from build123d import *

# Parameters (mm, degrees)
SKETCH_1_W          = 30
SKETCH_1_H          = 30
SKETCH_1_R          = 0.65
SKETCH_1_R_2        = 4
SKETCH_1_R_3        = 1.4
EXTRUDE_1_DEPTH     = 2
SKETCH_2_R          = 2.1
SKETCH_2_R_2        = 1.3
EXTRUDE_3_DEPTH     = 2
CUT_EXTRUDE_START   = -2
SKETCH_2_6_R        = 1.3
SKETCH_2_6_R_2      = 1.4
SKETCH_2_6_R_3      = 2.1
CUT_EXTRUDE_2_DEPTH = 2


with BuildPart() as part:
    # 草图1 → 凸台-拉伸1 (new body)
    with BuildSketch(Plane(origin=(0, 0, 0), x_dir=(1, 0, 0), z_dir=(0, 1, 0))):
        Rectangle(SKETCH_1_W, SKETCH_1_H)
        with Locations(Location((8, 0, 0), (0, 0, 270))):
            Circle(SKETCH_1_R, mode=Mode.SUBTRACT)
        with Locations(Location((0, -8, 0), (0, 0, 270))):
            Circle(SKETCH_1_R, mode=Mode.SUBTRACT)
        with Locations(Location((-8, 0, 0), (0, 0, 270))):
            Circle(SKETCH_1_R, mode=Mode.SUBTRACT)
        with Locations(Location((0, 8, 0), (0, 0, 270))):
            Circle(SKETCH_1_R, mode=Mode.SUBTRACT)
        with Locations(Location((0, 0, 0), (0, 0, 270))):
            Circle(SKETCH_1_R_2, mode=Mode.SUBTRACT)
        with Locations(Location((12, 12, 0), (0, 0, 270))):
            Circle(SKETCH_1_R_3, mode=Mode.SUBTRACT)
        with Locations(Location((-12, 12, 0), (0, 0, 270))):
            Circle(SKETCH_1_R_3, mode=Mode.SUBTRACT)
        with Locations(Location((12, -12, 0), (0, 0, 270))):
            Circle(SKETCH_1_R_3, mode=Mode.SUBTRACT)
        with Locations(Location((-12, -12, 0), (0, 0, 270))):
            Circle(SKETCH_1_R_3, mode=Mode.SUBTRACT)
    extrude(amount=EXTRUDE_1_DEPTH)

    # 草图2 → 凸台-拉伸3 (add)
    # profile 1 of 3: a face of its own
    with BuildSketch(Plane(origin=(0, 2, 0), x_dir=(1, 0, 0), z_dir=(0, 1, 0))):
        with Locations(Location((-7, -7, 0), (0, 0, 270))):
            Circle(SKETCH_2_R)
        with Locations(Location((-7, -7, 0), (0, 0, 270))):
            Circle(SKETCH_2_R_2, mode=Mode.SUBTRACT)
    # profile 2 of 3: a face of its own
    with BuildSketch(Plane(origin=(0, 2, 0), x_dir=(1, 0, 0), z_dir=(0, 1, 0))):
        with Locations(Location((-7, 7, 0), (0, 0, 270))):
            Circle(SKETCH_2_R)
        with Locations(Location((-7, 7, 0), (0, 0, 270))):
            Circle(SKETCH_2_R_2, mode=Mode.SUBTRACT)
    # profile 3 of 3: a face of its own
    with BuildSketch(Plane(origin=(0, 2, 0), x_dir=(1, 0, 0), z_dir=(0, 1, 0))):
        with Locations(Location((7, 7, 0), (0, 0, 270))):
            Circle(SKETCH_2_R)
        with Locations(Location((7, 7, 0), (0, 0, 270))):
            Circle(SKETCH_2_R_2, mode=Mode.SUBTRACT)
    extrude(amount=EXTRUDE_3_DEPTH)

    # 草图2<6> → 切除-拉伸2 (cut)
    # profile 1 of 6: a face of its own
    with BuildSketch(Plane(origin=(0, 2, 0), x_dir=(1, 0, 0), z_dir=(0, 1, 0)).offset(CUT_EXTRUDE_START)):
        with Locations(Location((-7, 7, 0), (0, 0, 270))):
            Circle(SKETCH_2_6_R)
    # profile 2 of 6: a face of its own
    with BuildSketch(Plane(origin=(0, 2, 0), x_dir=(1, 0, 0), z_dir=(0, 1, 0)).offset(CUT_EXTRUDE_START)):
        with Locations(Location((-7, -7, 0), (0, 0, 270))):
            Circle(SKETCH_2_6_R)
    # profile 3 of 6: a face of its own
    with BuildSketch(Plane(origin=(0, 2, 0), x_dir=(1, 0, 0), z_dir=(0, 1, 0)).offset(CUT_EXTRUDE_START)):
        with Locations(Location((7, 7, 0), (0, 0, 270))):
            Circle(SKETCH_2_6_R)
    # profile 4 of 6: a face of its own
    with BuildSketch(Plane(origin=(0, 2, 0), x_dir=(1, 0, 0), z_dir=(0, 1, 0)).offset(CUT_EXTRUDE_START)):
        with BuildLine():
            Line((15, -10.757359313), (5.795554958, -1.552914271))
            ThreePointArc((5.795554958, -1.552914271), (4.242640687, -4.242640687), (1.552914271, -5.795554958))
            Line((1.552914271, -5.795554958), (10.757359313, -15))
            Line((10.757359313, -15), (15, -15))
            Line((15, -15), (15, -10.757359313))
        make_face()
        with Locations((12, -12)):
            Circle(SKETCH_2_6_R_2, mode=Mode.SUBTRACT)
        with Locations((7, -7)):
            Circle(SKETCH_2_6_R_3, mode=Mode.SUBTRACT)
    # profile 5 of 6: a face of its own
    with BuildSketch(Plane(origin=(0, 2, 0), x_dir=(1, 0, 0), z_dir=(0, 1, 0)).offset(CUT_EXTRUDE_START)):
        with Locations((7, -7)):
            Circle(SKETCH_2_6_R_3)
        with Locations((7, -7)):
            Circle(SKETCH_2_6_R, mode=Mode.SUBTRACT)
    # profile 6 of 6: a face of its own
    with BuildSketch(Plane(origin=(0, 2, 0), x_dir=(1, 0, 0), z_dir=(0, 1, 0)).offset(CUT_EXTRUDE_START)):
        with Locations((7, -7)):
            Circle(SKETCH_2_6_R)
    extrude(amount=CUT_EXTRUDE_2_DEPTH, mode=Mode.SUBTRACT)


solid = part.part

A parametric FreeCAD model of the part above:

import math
import FreeCAD as App
import Part
import Sketcher
Q = App.Units.Quantity

doc = App.newDocument("Part")
body = doc.addObject("PartDesign::Body", "Body")

# Sketch on XZ plane
sketch1 = body.newObject("Sketcher::SketchObject", "Sketch")
sketch1.AttachmentSupport = (doc.getObject("XZ_Plane"), [""])
sketch1.MapMode = "FlatFace"
sketch1.addGeometry([
    Part.LineSegment(App.Vector(-15, -15, 0), App.Vector(-15, 15, 0)),  # 0
    Part.LineSegment(App.Vector(-15, 15, 0), App.Vector(15, 15, 0)),  # 1
    Part.LineSegment(App.Vector(15, 15, 0), App.Vector(15, -15, 0)),  # 2
    Part.LineSegment(App.Vector(15, -15, 0), App.Vector(-15, -15, 0)),  # 3
    Part.Circle(App.Vector(-12, 12, 0), App.Vector(0, 0, 1), 1.4),  # 4
    Part.Circle(App.Vector(0, 8, 0), App.Vector(0, 0, 1), 0.7),  # 5
    Part.Circle(App.Vector(-8, 0, 0), App.Vector(0, 0, 1), 0.7),  # 6
    Part.Circle(App.Vector(0, 0, 0), App.Vector(0, 0, 1), 4),  # 7
    Part.Circle(App.Vector(12, 12, 0), App.Vector(0, 0, 1), 1.4),  # 8
    Part.Circle(App.Vector(8, 0, 0), App.Vector(0, 0, 1), 0.7),  # 9
    Part.Circle(App.Vector(-12, -12, 0), App.Vector(0, 0, 1), 1.4),  # 10
    Part.Circle(App.Vector(0, -8, 0), App.Vector(0, 0, 1), 0.7),  # 11
    Part.Circle(App.Vector(12, -12, 0), App.Vector(0, 0, 1), 1.4),  # 12
], False)
sketch1.addConstraint([
    Sketcher.Constraint("Coincident", 0, 2, 1, 1),
    Sketcher.Constraint("Coincident", 1, 2, 2, 1),
    Sketcher.Constraint("Coincident", 2, 2, 3, 1),
    Sketcher.Constraint("Coincident", 3, 2, 0, 1),
    Sketcher.Constraint("Vertical", 0),
    Sketcher.Constraint("Horizontal", 1),
    Sketcher.Constraint("Vertical", 2),
    Sketcher.Constraint("Horizontal", 3),
    Sketcher.Constraint("Coincident", 7, 3, -1, 1),
    Sketcher.Constraint("Equal", 5, 6),
    Sketcher.Constraint("Equal", 4, 8),
    Sketcher.Constraint("Equal", 6, 9),
    Sketcher.Constraint("Equal", 8, 10),
    Sketcher.Constraint("Equal", 9, 11),
    Sketcher.Constraint("Equal", 10, 12),
    Sketcher.Constraint("Symmetric", 6, 3, 9, 3, -1, 1),
    Sketcher.Constraint("Symmetric", 8, 3, 10, 3, -1, 1),
    Sketcher.Constraint("Symmetric", 5, 3, 11, 3, -1, 1),
    Sketcher.Constraint("Symmetric", 4, 3, 12, 3, -1, 1),
    Sketcher.Constraint("Symmetric", 0, 2, 2, 2, -1, 1),
    Sketcher.Constraint("Symmetric", 4, 3, 8, 3, -2),
    Sketcher.Constraint("PointOnObject", 5, 3, -2),
    Sketcher.Constraint("PointOnObject", 6, 3, -1),
    Sketcher.Constraint("Equal", 3, 0),
    Sketcher.Constraint("Diameter", 7, Q("8 mm")),
    Sketcher.Constraint("Diameter", 4, Q("2.8 mm")),
    Sketcher.Constraint("Diameter", 5, Q("1.3 mm")),
    Sketcher.Constraint("DistanceX", 1, 1, 1, 2, Q("30 mm")),
    Sketcher.Constraint("DistanceX", 4, 3, -1, 1, Q("12 mm")),
    Sketcher.Constraint("DistanceY", -1, 1, 4, 3, Q("12 mm")),
    Sketcher.Constraint("DistanceY", -1, 1, 5, 3, Q("8 mm")),
    Sketcher.Constraint("DistanceX", 6, 3, -1, 1, Q("8 mm")),
])
pad1 = body.newObject("PartDesign::Pad", "Pad")
pad1.Profile = sketch1
pad1.Length = 2
pad1.Reversed = True

# Sketch on XZ plane
sketch2 = body.newObject("Sketcher::SketchObject", "Sketch001")
sketch2.AttachmentSupport = (doc.getObject("XZ_Plane"), [""])
sketch2.MapMode = "FlatFace"
sketch2.AttachmentOffset = App.Placement(App.Vector(0, 0, -2), App.Rotation())
sketch2.addGeometry([
    Part.Circle(App.Vector(-7, 7, 0), App.Vector(0, 0, 1), 2.1),  # 0
    Part.Circle(App.Vector(-7, 7, 0), App.Vector(0, 0, 1), 1.3),  # 1
    Part.Circle(App.Vector(-7, -7, 0), App.Vector(0, 0, 1), 2.1),  # 2
    Part.Circle(App.Vector(-7, -7, 0), App.Vector(0, 0, 1), 1.3),  # 3
    Part.Circle(App.Vector(7, -7, 0), App.Vector(0, 0, 1), 2.1),  # 4
    Part.Circle(App.Vector(7, -7, 0), App.Vector(0, 0, 1), 1.3),  # 5
], False)
sketch2.addConstraint([
    Sketcher.Constraint("Coincident", 1, 3, 0, 3),
    Sketcher.Constraint("Coincident", 3, 3, 2, 3),
    Sketcher.Constraint("Coincident", 5, 3, 4, 3),
    Sketcher.Constraint("Equal", 0, 2),
    Sketcher.Constraint("Equal", 1, 3),
    Sketcher.Constraint("Equal", 2, 4),
    Sketcher.Constraint("Equal", 3, 5),
    Sketcher.Constraint("Symmetric", 0, 3, 4, 3, -1, 1),
    Sketcher.Constraint("Symmetric", 2, 3, 4, 3, -2),
    Sketcher.Constraint("Diameter", 0, Q("4.2 mm")),
    Sketcher.Constraint("Diameter", 1, Q("2.6 mm")),
    Sketcher.Constraint("DistanceX", 0, 3, -1, 1, Q("7 mm")),
    Sketcher.Constraint("DistanceY", -1, 1, 0, 3, Q("7 mm")),
])
pad2 = body.newObject("PartDesign::Pad", "Pad001")
pad2.Profile = sketch2
pad2.Length = 2
pad2.Reversed = True

# Sketch on XZ plane
sketch3 = body.newObject("Sketcher::SketchObject", "Sketch002")
sketch3.AttachmentSupport = (doc.getObject("XZ_Plane"), [""])
sketch3.MapMode = "FlatFace"
sketch3.addGeometry([
    Part.Circle(App.Vector(-7, -7, 0), App.Vector(0, 0, 1), 1.3),  # 0
    Part.Circle(App.Vector(-7, 7, 0), App.Vector(0, 0, 1), 1.3),  # 1
    Part.Circle(App.Vector(7, -7, 0), App.Vector(0, 0, 1), 1.3),  # 2
    Part.LineSegment(App.Vector(15, 10.8, 0), App.Vector(5.8, 1.6, 0)),  # 3
    Part.ArcOfCircle(Part.Circle(App.Vector(0, 0, 0), App.Vector(0, 0, 1), 6), math.radians(15), math.radians(75)),  # 4
    Part.LineSegment(App.Vector(1.6, 5.8, 0), App.Vector(10.8, 15, 0)),  # 5
    Part.LineSegment(App.Vector(10.8, 15, 0), App.Vector(15, 15, 0)),  # 6
    Part.LineSegment(App.Vector(15, 15, 0), App.Vector(15, 10.8, 0)),  # 7
    Part.Circle(App.Vector(12, 12, 0), App.Vector(0, 0, 1), 1.4),  # 8
], False)
sketch3.addConstraint([
    Sketcher.Constraint("Coincident", 3, 2, 4, 1),
    Sketcher.Constraint("Coincident", 4, 2, 5, 1),
    Sketcher.Constraint("Coincident", 5, 2, 6, 1),
    Sketcher.Constraint("Coincident", 6, 2, 7, 1),
    Sketcher.Constraint("Coincident", 7, 2, 3, 1),
    Sketcher.Constraint("Horizontal", 6),
    Sketcher.Constraint("Vertical", 7),
    Sketcher.Constraint("Coincident", 4, 3, -1, 1),
    Sketcher.Constraint("Equal", 0, 1),
    Sketcher.Constraint("Equal", 1, 2),
    Sketcher.Constraint("Symmetric", 1, 3, 2, 3, -1, 1),
    Sketcher.Constraint("Symmetric", 0, 3, 2, 3, -2),
    Sketcher.Constraint("Parallel", 3, 5),
    Sketcher.Constraint("Equal", 6, 7),
    Sketcher.Constraint("Equal", 3, 5),
    Sketcher.Constraint("Radius", 4, Q("6 mm")),
    Sketcher.Constraint("Diameter", 0, Q("2.6 mm")),
    Sketcher.Constraint("Diameter", 8, Q("2.8 mm")),
    Sketcher.Constraint("Angle", 3, Q("-135 deg")),
    Sketcher.Constraint("DistanceX", 0, 3, -1, 1, Q("7 mm")),
    Sketcher.Constraint("DistanceY", 0, 3, -1, 1, Q("7 mm")),
    Sketcher.Constraint("DistanceX", -1, 1, 8, 3, Q("12 mm")),
    Sketcher.Constraint("DistanceY", -1, 1, 8, 3, Q("12 mm")),
    Sketcher.Constraint("DistanceY", -1, 1, 5, 2, Q("15 mm")),
    Sketcher.Constraint("DistanceX", 6, 1, 6, 2, Q("4.242641 mm")),
])
pocket1 = body.newObject("PartDesign::Pocket", "Pocket")
pocket1.Profile = sketch3
pocket1.Length = 2

doc.recompute()
